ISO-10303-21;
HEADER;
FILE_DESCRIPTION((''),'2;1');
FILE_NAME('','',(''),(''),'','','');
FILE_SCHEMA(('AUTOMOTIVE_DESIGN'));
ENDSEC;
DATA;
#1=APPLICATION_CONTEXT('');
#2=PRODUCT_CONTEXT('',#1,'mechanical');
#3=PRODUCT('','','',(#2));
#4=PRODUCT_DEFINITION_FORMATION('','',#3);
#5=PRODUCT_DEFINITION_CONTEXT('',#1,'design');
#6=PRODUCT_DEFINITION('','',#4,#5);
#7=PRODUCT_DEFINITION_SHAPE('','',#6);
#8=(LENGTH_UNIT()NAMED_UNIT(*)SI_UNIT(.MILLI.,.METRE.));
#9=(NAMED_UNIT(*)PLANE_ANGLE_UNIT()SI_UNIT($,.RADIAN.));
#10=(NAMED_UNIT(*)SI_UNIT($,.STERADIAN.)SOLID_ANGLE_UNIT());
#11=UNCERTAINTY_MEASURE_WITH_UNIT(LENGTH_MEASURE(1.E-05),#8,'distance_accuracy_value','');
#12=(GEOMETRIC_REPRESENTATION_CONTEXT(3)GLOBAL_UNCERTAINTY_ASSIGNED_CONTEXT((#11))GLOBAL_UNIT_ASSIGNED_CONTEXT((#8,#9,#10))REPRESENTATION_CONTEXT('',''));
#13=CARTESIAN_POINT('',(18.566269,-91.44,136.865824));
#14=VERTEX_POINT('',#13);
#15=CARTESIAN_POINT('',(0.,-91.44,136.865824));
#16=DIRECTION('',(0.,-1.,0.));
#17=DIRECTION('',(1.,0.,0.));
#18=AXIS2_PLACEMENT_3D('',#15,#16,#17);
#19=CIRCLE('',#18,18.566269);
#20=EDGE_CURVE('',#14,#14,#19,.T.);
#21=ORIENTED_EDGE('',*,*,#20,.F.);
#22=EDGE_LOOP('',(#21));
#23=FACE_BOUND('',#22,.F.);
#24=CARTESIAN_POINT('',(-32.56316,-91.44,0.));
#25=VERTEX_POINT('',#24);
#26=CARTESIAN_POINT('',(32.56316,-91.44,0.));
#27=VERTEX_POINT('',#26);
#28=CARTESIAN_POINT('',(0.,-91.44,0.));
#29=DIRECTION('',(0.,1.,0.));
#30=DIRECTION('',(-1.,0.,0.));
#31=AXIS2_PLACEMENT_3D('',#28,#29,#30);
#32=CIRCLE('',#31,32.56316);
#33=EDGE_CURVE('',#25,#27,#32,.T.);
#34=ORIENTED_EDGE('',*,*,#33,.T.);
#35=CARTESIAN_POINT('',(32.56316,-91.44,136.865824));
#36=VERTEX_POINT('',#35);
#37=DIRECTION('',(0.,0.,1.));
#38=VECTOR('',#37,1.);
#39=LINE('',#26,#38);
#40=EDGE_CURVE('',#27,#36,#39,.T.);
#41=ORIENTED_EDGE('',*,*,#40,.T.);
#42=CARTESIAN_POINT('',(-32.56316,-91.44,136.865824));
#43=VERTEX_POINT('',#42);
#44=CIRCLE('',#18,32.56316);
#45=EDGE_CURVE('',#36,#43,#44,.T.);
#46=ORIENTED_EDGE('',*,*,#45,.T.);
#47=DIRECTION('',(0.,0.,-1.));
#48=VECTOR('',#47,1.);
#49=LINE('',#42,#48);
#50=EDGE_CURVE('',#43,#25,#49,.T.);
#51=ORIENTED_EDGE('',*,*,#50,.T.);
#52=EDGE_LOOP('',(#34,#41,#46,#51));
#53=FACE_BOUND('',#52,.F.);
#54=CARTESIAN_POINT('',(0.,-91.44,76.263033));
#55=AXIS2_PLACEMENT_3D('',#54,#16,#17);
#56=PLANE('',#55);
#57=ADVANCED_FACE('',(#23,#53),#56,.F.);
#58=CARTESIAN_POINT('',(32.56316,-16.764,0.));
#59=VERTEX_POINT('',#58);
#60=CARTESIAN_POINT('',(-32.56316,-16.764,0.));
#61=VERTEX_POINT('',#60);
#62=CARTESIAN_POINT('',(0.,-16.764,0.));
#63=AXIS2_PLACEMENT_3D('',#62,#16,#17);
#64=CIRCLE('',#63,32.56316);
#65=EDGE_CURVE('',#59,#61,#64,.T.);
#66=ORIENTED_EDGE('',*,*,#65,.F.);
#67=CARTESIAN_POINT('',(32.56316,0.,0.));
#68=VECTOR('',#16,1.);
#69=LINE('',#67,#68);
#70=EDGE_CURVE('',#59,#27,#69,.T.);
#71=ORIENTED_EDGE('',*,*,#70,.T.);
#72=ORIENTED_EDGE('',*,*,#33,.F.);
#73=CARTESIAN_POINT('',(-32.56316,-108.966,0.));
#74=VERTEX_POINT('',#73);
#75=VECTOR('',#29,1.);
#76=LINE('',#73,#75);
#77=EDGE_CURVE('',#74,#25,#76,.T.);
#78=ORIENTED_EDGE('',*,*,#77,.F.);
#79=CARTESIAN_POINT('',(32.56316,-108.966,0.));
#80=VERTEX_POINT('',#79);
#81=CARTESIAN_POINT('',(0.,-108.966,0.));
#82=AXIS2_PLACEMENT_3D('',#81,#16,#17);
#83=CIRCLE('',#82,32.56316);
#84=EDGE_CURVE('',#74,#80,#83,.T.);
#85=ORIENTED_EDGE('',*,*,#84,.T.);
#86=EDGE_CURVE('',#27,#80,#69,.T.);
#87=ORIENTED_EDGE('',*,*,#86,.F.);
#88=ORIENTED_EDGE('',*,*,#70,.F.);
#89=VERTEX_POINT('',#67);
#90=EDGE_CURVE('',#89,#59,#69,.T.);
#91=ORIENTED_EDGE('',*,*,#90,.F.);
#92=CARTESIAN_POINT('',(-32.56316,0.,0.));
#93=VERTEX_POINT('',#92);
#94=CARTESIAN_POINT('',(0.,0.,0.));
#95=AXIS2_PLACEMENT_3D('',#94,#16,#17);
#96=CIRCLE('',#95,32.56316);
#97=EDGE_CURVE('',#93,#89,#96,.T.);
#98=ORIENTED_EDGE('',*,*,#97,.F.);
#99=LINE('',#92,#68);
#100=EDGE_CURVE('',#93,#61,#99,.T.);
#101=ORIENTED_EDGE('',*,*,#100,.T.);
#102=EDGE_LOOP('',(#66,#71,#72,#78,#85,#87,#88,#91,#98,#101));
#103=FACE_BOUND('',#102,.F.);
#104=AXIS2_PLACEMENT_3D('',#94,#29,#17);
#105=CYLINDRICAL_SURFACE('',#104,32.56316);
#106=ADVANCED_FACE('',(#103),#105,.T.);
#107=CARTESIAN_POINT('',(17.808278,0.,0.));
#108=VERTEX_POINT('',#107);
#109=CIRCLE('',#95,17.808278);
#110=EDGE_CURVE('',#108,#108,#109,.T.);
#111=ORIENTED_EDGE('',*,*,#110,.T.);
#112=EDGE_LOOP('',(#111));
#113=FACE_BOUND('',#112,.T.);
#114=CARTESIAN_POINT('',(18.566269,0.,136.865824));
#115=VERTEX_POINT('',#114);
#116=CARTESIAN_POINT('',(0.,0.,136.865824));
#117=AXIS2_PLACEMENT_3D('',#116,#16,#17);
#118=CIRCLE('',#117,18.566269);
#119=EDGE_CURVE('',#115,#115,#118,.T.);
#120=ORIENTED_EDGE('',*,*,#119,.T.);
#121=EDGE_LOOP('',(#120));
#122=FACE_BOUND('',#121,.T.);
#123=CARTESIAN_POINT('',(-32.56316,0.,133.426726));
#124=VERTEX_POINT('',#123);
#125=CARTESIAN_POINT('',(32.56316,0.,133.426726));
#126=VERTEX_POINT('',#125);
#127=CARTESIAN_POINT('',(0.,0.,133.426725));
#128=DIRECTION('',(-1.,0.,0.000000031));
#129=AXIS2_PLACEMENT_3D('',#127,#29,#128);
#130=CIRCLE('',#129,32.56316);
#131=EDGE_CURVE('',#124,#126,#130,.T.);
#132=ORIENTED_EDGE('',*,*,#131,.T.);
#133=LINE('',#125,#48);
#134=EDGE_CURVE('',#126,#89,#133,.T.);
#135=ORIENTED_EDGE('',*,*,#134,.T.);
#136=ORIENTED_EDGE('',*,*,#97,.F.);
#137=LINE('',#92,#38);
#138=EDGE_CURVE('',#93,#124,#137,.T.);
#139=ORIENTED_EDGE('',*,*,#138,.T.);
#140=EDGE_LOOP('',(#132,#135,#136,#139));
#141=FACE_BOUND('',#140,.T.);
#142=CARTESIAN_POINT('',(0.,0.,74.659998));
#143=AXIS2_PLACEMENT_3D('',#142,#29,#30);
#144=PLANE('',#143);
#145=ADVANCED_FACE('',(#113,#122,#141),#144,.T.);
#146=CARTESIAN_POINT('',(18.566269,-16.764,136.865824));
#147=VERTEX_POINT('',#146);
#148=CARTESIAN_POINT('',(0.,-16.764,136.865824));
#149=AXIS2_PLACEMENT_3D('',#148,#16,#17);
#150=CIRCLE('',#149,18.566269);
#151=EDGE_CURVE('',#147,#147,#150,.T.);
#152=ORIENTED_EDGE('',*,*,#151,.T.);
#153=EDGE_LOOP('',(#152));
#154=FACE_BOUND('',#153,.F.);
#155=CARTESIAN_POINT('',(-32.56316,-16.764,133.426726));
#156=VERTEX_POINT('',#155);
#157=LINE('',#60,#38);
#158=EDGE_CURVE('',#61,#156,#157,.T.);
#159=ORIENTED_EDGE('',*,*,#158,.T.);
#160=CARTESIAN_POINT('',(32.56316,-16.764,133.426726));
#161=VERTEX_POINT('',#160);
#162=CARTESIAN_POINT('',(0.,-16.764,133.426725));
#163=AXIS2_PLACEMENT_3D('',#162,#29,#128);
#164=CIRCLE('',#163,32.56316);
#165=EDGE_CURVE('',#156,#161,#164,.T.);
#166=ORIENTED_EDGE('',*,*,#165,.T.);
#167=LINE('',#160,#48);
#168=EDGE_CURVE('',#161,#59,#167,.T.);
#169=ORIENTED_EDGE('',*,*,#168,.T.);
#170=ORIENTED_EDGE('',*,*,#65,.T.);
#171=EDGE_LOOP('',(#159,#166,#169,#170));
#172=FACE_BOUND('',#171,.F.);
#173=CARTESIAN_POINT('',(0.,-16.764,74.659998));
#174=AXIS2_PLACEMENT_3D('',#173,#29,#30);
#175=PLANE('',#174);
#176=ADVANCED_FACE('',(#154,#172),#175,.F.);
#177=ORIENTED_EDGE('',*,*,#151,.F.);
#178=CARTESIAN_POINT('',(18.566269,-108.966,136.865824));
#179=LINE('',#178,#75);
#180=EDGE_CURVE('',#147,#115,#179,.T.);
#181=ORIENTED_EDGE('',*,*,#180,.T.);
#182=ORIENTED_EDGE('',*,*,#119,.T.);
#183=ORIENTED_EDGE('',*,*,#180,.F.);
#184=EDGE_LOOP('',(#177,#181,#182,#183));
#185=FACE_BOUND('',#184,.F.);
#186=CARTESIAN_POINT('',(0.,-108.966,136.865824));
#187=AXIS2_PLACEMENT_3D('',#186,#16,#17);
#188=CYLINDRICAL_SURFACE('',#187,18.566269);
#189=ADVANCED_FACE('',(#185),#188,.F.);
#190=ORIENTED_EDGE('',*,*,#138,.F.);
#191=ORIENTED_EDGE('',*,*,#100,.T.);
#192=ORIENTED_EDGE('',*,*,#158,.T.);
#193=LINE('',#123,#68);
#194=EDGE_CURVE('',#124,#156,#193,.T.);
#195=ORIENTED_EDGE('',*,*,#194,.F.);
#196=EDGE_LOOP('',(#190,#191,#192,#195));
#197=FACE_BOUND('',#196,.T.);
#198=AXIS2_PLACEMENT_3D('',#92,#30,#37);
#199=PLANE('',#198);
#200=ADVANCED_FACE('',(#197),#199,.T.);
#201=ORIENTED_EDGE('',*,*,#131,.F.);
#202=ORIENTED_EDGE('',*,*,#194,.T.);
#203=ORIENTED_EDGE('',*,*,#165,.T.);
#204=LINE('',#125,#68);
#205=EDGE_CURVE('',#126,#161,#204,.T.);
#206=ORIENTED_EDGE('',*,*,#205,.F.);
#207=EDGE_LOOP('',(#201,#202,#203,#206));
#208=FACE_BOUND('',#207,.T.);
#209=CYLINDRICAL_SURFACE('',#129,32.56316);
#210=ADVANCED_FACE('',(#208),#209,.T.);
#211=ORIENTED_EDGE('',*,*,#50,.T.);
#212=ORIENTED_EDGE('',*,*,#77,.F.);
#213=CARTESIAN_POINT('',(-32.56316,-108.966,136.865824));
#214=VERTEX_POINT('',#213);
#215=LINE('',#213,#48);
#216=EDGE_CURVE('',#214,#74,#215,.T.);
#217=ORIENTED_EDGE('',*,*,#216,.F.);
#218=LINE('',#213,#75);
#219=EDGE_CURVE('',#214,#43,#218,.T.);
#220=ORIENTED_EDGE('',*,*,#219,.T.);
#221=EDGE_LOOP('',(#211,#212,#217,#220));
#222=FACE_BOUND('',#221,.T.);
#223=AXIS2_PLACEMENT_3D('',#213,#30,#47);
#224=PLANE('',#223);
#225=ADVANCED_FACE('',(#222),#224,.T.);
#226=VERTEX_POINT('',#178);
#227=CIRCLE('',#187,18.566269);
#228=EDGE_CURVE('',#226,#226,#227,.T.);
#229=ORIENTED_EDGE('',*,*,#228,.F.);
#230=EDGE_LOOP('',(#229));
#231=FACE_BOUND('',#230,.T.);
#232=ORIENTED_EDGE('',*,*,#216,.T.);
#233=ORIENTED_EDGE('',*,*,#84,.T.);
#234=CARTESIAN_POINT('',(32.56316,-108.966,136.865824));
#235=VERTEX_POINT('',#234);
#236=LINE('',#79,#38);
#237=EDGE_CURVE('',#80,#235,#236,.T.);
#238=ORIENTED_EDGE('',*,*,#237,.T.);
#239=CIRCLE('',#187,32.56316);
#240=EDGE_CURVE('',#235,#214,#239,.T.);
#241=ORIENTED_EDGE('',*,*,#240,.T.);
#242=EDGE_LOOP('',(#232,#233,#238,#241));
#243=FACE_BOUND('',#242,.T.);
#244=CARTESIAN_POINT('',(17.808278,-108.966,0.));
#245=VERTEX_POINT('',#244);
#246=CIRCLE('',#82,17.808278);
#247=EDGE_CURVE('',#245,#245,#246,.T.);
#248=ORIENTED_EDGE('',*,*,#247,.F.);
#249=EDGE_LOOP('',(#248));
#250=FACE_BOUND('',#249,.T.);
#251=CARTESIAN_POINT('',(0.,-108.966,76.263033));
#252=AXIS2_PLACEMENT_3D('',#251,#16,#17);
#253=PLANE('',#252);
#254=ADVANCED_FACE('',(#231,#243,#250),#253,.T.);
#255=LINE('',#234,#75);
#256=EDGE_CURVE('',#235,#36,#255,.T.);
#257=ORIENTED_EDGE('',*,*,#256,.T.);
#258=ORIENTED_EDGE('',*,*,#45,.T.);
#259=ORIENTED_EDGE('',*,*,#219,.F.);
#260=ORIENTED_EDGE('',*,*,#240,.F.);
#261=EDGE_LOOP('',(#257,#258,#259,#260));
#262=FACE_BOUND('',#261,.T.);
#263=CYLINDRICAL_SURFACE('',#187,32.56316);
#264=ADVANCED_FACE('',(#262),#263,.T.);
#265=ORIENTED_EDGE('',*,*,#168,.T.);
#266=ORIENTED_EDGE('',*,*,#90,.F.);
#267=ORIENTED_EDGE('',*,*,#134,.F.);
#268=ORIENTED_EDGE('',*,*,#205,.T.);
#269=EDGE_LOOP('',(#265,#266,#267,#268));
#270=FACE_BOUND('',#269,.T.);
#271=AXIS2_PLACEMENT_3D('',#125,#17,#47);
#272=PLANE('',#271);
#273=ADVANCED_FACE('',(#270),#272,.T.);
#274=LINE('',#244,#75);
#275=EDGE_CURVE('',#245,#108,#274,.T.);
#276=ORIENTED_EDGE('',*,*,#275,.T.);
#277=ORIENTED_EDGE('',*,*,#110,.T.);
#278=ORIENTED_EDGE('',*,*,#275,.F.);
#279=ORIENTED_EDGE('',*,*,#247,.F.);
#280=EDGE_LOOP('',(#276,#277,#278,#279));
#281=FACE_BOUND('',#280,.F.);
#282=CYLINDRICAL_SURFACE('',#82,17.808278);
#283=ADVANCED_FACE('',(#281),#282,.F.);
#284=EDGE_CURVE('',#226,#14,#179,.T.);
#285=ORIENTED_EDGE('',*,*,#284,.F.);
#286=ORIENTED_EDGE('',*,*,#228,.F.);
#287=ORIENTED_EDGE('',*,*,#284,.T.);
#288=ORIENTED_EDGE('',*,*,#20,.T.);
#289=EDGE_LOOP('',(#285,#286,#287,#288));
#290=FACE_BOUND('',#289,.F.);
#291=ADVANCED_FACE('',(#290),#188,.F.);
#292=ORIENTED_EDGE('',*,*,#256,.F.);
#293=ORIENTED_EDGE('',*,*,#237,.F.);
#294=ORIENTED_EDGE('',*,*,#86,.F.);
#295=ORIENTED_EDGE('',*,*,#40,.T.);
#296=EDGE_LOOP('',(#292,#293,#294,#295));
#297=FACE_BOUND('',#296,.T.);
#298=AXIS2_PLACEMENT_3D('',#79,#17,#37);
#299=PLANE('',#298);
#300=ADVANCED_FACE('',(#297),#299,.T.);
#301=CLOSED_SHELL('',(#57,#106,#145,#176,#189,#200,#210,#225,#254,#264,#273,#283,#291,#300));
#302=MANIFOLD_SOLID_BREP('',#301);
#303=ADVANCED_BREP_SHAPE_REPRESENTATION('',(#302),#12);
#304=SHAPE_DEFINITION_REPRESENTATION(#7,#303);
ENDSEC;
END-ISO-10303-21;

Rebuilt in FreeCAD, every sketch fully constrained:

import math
import FreeCAD as App
import Part
import Sketcher

V = App.Vector
Q = App.Units.Quantity

doc = App.newDocument("Part")
body = doc.addObject("PartDesign::Body", "Body")

# Sketch on XZ plane
sketch1 = doc.addObject("Sketcher::SketchObject", "Sketch")
body.addObject(sketch1)
sketch1.AttachmentSupport = (doc.XZ_Plane, [""])
sketch1.MapMode = "FlatFace"
sketch1.addGeometry(Part.Circle(V(0, 0, 0), V(0, 0, 1), 32.56316), False)
sketch1.addConstraint([
    Sketcher.Constraint("Coincident", 0, 3, -1, 1),
    Sketcher.Constraint("Diameter", 0, 65.12632),
])
pad1 = doc.addObject("PartDesign::Pad", "Pad")
body.addObject(pad1)
pad1.Profile = sketch1
pad1.Length = Q("4.29 in")

# Sketch on XZ plane
sketch2 = doc.addObject("Sketcher::SketchObject", "Sketch001")
body.addObject(sketch2)
sketch2.AttachmentSupport = (doc.XZ_Plane, [""])
sketch2.MapMode = "FlatFace"
sketch2.addGeometry([
    Part.ArcOfCircle(Part.Circle(V(0, 0, 0), V(0, 0, 1), 32.56316), math.radians(0), math.radians(180)),
    Part.LineSegment(V(-32.56316, 0, 0), V(-32.56316, 133.426726, 0)),
    Part.ArcOfCircle(Part.Circle(V(0, 133.426725, 0), V(0, 0, 1), 32.56316), math.radians(0.000002), math.radians(179.999998)),
    Part.LineSegment(V(32.56316, 133.426726, 0), V(32.56316, 0, 0)),
], False)
sketch2.addConstraint([
    Sketcher.Constraint("Tangent", 0, 2, 1, 1),
    Sketcher.Constraint("Tangent", 1, 2, 2, 2),
    Sketcher.Constraint("Tangent", 2, 1, 3, 1),
    Sketcher.Constraint("Tangent", 3, 2, 0, 1),
    Sketcher.Constraint("Vertical", 1),
    Sketcher.Constraint("Vertical", 3),
    Sketcher.Constraint("Coincident", 0, 3, -1, 1),
    Sketcher.Constraint("Radius", 0, 32.56316),
    Sketcher.Constraint("DistanceY", 1, 1, 1, 2, 133.426726),
])
pad2 = doc.addObject("PartDesign::Pad", "Pad001")
body.addObject(pad2)
pad2.Profile = sketch2
pad2.Length = Q("0.66 in")

# Sketch on XZ plane
sketch3 = doc.addObject("Sketcher::SketchObject", "Sketch002")
body.addObject(sketch3)
sketch3.AttachmentSupport = (doc.XZ_Plane, [""])
sketch3.MapMode = "FlatFace"
sketch3.AttachmentOffset = App.Placement(V(0, 0, 4.29 * 25.4), App.Rotation())
sketch3.addGeometry([
    Part.LineSegment(V(-32.56316, 136.865824, 0), V(-32.56316, 0, 0)),
    Part.ArcOfCircle(Part.Circle(V(0, 0, 0), V(0, 0, 1), 32.56316), math.radians(0), math.radians(180)),
    Part.LineSegment(V(32.56316, 0, 0), V(32.56316, 136.865824, 0)),
    Part.ArcOfCircle(Part.Circle(V(0, 136.865824, 0), V(0, 0, 1), 32.56316), math.radians(0), math.radians(180)),
], False)
sketch3.addConstraint([
    Sketcher.Constraint("Tangent", 0, 2, 1, 2),
    Sketcher.Constraint("Tangent", 1, 1, 2, 1),
    Sketcher.Constraint("Tangent", 2, 2, 3, 1),
    Sketcher.Constraint("Tangent", 3, 2, 0, 1),
    Sketcher.Constraint("Vertical", 0),
    Sketcher.Constraint("Vertical", 2),
    Sketcher.Constraint("Coincident", 1, 3, -1, 1),
    Sketcher.Constraint("Radius", 1, 32.56316),
    Sketcher.Constraint("DistanceY", 0, 2, 0, 1, 136.865824),
])
pad3 = doc.addObject("PartDesign::Pad", "Pad002")
body.addObject(pad3)
pad3.Profile = sketch3
pad3.Length = Q("0.69 in")
pad3.Reversed = True

# Sketch on XZ plane
sketch4 = doc.addObject("Sketcher::SketchObject", "Sketch003")
body.addObject(sketch4)
sketch4.AttachmentSupport = (doc.XZ_Plane, [""])
sketch4.MapMode = "FlatFace"
sketch4.AttachmentOffset = App.Placement(V(0, 0, 4.29 * 25.4), App.Rotation())
sketch4.addGeometry(Part.Circle(V(0, 136.865824, 0), V(0, 0, 1), 18.566269), False)
sketch4.addConstraint([
    Sketcher.Constraint("PointOnObject", 0, 3, -2),
    Sketcher.Constraint("Diameter", 0, 37.132538),
    Sketcher.Constraint("DistanceY", -1, 1, 0, 3, 136.865824),
])
pocket1 = doc.addObject("PartDesign::Pocket", "Pocket")
body.addObject(pocket1)
pocket1.Profile = sketch4
pocket1.Length = Q("7.41 in")

# Sketch on XZ plane
sketch5 = doc.addObject("Sketcher::SketchObject", "Sketch004")
body.addObject(sketch5)
sketch5.AttachmentSupport = (doc.XZ_Plane, [""])
sketch5.MapMode = "FlatFace"
sketch5.AttachmentOffset = App.Placement(V(0, 0, 4.29 * 25.4), App.Rotation())
sketch5.addGeometry(Part.Circle(V(0, 0, 0), V(0, 0, 1), 17.808278), False)
sketch5.addConstraint([
    Sketcher.Constraint("Coincident", 0, 3, -1, 1),
    Sketcher.Constraint("Diameter", 0, 35.616556),
])
pocket2 = doc.addObject("PartDesign::Pocket", "Pocket001")
body.addObject(pocket2)
pocket2.Profile = sketch5
pocket2.Length = Q("8.63 in")

doc.recompute()
